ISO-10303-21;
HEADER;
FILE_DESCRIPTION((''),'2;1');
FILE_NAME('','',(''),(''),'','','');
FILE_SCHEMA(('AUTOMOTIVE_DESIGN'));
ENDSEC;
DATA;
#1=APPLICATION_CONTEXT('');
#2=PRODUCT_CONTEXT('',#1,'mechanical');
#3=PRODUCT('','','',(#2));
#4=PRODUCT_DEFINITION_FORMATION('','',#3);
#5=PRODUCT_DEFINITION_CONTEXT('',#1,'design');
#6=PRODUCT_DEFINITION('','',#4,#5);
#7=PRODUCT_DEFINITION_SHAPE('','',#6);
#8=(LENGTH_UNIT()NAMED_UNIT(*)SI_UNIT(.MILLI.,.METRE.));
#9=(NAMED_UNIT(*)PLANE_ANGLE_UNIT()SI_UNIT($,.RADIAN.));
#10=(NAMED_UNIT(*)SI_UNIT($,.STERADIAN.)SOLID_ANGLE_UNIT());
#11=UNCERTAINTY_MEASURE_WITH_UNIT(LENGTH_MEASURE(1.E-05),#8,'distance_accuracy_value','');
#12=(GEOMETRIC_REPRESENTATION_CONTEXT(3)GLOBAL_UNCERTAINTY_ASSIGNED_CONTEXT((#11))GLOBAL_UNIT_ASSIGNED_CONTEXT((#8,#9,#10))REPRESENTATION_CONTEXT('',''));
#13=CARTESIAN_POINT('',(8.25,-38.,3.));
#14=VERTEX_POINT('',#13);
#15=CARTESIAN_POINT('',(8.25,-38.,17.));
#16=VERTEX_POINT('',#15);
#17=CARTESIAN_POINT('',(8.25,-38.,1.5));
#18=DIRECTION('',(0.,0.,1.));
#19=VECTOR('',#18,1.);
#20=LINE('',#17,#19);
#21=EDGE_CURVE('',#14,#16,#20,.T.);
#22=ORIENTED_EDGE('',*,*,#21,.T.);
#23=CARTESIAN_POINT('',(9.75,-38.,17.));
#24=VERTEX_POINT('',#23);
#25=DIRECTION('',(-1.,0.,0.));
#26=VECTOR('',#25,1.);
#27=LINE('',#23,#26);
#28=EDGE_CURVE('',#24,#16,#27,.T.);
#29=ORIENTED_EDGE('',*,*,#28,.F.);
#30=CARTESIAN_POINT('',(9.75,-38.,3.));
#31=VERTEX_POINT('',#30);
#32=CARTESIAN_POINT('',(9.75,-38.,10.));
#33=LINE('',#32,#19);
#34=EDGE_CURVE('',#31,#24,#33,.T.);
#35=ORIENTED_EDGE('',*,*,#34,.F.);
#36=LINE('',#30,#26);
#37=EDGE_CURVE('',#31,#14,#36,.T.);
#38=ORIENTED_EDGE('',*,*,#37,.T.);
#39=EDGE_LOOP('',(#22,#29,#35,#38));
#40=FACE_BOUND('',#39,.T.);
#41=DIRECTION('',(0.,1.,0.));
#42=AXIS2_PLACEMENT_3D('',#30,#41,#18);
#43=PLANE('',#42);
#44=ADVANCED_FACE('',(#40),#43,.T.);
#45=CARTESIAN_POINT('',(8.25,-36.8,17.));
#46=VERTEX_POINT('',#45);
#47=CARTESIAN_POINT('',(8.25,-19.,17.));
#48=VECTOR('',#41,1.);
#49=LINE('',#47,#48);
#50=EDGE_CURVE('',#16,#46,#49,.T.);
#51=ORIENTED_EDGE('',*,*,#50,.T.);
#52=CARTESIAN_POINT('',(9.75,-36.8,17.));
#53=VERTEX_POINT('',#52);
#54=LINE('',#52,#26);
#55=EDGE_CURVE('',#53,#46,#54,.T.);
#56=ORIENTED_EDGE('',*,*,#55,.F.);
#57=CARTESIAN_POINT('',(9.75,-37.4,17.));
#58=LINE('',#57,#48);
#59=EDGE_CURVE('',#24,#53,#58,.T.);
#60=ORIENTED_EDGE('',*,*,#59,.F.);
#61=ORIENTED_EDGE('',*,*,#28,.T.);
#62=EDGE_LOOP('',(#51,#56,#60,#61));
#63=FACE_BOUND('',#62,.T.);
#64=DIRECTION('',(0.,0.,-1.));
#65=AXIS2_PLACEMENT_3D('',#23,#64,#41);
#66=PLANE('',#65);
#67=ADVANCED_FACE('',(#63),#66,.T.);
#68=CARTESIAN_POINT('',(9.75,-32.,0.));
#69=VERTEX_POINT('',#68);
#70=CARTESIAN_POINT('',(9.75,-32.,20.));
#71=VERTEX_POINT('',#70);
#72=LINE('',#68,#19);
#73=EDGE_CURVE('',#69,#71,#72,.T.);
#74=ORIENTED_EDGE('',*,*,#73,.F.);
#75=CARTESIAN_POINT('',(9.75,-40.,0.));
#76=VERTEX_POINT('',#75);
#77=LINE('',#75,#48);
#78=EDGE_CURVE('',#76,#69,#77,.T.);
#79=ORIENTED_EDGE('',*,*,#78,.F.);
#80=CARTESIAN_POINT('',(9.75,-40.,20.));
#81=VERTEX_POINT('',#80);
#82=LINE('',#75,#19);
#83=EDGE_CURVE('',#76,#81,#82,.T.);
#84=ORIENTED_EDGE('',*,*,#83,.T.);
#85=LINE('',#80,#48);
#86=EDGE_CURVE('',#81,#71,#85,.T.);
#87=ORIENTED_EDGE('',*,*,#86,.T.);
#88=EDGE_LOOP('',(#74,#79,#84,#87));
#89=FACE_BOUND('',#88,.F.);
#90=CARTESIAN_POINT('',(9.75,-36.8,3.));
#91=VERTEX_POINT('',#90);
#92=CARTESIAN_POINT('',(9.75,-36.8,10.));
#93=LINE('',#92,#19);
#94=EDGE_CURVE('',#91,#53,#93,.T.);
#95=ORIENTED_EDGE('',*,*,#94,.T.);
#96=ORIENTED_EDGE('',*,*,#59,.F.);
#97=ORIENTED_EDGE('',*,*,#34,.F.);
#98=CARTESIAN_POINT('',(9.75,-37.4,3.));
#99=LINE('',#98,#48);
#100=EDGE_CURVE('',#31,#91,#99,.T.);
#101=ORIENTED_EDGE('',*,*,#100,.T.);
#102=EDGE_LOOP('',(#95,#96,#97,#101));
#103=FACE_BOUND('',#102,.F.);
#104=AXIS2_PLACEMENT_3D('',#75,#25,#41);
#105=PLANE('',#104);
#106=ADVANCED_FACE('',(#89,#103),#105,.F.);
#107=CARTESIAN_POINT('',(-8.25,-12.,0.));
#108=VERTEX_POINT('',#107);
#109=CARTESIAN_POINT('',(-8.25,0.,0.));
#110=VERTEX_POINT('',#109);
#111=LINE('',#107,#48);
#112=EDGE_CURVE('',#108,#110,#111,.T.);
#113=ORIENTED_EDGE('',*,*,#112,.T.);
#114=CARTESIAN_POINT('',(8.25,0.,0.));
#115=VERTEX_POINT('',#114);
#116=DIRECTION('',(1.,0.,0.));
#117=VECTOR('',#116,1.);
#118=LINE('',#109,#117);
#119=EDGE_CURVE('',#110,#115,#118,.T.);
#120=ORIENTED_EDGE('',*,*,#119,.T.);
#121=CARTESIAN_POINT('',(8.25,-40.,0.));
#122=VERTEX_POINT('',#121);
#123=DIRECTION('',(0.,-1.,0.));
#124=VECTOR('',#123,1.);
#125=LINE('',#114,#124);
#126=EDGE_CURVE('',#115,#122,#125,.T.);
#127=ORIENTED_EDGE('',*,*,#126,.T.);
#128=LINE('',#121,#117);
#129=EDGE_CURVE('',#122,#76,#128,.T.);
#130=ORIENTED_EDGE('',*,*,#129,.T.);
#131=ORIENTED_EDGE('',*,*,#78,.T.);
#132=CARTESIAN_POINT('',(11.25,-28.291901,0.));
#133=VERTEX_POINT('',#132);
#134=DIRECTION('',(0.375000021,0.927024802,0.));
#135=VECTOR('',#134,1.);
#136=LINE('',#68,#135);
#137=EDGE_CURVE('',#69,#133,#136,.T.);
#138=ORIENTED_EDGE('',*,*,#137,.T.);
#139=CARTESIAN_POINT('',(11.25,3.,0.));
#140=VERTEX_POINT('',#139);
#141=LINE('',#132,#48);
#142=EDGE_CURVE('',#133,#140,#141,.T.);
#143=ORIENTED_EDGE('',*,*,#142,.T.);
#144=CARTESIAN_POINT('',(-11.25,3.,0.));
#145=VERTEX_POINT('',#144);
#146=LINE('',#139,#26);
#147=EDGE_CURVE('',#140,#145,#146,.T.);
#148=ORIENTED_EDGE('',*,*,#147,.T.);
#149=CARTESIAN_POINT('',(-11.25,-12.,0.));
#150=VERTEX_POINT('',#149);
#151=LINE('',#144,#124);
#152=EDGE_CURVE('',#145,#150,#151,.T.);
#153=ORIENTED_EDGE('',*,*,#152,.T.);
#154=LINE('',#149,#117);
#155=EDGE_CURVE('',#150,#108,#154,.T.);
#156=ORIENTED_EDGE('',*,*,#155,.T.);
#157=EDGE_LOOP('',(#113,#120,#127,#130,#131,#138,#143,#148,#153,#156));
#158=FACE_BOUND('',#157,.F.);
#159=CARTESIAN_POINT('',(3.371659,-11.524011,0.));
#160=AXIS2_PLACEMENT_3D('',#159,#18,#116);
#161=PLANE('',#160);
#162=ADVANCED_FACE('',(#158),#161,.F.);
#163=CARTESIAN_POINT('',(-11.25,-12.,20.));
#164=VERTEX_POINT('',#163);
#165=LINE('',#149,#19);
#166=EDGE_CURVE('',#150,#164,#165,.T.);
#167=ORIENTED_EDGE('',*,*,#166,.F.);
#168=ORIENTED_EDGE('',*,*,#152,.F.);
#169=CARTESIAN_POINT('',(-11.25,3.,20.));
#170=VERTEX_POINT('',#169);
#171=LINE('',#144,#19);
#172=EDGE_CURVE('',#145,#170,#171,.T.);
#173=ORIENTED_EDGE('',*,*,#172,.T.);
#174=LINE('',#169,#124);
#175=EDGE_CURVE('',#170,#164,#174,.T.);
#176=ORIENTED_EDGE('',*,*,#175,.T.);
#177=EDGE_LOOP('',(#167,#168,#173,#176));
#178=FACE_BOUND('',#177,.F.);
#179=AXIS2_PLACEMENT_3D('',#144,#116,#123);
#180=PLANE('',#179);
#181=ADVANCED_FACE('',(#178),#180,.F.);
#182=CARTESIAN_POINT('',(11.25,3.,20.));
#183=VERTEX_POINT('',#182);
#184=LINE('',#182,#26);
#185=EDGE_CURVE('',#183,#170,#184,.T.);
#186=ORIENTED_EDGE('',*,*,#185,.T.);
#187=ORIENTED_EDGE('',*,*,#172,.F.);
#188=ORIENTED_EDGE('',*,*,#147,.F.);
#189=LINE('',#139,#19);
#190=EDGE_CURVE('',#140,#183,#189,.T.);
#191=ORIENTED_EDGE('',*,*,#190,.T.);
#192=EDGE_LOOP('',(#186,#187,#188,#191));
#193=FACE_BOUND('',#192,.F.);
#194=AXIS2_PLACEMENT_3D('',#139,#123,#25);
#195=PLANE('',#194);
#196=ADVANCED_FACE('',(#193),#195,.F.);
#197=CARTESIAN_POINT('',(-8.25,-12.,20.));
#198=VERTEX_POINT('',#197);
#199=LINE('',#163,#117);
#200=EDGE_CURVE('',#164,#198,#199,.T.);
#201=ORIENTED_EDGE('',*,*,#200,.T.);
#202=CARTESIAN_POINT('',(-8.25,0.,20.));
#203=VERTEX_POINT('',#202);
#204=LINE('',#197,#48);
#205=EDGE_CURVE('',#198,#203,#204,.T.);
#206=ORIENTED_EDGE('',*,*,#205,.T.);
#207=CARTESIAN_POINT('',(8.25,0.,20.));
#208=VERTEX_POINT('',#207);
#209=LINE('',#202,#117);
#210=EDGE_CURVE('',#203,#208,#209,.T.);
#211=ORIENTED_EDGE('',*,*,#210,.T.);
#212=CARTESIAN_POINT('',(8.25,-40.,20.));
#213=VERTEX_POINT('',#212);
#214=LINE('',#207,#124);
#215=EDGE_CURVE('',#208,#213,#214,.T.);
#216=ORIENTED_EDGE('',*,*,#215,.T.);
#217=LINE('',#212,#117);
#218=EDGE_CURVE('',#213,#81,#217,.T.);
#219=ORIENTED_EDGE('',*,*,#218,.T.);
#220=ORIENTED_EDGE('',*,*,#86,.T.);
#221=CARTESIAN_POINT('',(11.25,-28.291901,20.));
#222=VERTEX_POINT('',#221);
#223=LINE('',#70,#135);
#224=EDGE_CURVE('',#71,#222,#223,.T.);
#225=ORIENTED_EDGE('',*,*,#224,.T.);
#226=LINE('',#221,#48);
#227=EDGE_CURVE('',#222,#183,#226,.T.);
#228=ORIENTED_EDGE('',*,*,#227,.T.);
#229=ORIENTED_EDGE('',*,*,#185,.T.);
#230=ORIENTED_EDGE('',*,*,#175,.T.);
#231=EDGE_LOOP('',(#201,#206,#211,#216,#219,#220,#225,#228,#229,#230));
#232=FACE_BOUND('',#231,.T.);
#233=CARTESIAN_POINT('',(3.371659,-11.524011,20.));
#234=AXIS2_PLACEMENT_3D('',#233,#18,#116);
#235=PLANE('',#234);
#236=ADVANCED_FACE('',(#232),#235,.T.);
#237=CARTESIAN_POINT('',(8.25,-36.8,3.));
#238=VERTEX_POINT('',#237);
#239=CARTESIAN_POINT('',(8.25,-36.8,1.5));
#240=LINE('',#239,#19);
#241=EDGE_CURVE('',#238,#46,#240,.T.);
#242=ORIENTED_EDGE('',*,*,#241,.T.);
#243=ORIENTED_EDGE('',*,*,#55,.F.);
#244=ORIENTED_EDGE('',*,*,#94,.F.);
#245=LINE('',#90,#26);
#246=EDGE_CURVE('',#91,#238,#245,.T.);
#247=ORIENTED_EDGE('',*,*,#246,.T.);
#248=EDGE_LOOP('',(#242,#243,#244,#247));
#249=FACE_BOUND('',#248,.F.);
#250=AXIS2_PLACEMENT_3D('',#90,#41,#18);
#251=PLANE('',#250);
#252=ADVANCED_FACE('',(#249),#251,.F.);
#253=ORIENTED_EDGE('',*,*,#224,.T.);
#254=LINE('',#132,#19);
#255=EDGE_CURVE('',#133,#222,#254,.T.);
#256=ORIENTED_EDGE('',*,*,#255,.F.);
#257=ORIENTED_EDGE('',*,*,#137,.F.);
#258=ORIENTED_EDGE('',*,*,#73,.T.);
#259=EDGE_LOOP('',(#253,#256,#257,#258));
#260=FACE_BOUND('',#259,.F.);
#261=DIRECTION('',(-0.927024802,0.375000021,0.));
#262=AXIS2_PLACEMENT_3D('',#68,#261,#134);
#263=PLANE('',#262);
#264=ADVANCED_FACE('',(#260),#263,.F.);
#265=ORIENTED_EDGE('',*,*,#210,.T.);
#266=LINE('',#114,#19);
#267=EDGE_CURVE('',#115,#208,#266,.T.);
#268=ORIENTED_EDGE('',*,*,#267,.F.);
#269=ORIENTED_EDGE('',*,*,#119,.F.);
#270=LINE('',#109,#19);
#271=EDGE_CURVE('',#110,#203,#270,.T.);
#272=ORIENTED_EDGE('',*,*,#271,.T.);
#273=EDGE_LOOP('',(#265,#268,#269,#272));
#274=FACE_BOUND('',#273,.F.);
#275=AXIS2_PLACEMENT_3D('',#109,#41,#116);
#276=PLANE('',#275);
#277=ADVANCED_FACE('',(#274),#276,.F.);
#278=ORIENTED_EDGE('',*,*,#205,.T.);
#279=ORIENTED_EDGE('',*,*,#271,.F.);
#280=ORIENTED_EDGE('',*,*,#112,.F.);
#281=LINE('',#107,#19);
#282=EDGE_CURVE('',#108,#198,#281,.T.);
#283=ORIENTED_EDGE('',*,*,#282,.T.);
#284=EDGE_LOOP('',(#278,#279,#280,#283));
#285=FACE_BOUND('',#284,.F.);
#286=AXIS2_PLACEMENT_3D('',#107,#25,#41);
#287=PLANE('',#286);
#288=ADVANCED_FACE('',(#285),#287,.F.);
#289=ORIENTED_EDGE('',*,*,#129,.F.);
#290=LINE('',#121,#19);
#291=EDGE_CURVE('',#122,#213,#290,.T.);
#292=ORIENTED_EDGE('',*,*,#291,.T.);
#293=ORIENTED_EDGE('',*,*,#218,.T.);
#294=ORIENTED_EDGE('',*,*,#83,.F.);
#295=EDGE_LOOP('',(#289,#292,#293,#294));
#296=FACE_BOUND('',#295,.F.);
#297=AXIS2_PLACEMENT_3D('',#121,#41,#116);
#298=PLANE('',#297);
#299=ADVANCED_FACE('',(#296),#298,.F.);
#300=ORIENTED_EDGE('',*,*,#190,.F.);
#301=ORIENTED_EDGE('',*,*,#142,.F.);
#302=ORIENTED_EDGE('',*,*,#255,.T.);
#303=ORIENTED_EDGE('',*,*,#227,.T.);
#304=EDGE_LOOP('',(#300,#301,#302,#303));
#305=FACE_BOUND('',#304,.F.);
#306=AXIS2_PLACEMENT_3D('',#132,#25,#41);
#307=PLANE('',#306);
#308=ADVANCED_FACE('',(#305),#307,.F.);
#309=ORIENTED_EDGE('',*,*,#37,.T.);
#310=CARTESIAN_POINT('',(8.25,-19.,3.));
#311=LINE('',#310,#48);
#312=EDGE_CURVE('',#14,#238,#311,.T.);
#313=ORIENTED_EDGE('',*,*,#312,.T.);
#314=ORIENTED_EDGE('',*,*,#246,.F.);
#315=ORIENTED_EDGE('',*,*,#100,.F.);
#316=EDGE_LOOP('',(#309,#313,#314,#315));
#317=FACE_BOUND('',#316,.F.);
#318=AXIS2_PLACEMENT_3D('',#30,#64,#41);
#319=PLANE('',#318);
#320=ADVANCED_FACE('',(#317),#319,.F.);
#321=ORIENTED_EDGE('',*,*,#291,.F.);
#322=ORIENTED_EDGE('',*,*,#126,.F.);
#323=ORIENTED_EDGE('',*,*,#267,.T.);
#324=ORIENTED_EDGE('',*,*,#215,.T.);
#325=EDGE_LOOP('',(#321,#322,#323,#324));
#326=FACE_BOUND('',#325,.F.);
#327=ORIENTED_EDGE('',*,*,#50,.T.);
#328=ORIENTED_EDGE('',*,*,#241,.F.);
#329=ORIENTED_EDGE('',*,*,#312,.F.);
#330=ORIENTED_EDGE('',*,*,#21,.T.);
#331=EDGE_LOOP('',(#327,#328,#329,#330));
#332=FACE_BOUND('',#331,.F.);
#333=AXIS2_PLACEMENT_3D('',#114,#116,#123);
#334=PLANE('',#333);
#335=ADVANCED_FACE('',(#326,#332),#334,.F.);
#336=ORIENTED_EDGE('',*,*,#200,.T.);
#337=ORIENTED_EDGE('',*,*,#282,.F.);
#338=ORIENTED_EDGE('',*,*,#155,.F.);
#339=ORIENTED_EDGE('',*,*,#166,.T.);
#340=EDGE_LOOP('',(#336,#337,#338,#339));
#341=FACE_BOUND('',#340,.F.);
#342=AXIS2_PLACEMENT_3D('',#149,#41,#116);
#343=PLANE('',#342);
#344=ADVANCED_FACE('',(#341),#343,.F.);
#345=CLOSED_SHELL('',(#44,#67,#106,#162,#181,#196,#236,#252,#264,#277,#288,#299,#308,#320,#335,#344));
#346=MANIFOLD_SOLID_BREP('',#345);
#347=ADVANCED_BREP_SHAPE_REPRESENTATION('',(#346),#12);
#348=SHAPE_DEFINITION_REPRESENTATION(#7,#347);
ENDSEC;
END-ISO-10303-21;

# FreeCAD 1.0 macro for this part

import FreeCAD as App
import Part
import Sketcher

V = App.Vector
Q = App.Units.Quantity


def add_polygon(sketch, points):
    """Adds a closed chain of lines whose ends are joined by coincident constraints."""
    first, n = sketch.GeometryCount, len(points)
    for a, b in zip(points, points[1:] + points[:1]):
        sketch.addGeometry(Part.LineSegment(App.Vector(*a, 0), App.Vector(*b, 0)), False)
    for i in range(n):
        sketch.addConstraint(Sketcher.Constraint("Coincident", first + i, 2, first + (i + 1) % n, 1))

doc = App.newDocument("Part")
params = doc.addObject("Spreadsheet::Sheet", "Params")
for row, (alias, value) in enumerate([
    ("sketch1_width", "3 mm"),
    ("sketch1_height", "12 mm"),
    ("sketch1_height2", "40 mm"),
    ("sketch1_height3", "8 mm"),
    ("sketch1_height4", "15 mm"),
    ("pad1_length", "20 mm"),
    ("sketch2_height", "14 mm"),
    ("sketch2_width", "1.2 mm"),
    ("pocket1_length", "5 mm"),
], start=1):
    params.set(f"A{row}", alias)
    params.set(f"B{row}", "=" + value)
    params.setAlias(f"B{row}", alias)

body = doc.addObject("PartDesign::Body", "Body")

# Sketch on XY plane
sketch1 = body.newObject("Sketcher::SketchObject", "Sketch")
sketch1.AttachmentSupport = (doc.getObject("XY_Plane"), [""])
sketch1.MapMode = "FlatFace"
add_polygon(sketch1, [(-8.2, -12), (-8.2, 0), (8.2, 0), (8.2, -40), (9.8, -40), (9.8, -32), (11.2, -28.3), (11.2, 3), (-11.2, 3), (-11.2, -12)])  # lines 0-9
sketch1.addConstraint(Sketcher.Constraint("Vertical", 0))
sketch1.addConstraint(Sketcher.Constraint("Horizontal", 1))
sketch1.addConstraint(Sketcher.Constraint("Vertical", 2))
sketch1.addConstraint(Sketcher.Constraint("Horizontal", 3))
sketch1.addConstraint(Sketcher.Constraint("Vertical", 4))
sketch1.addConstraint(Sketcher.Constraint("Vertical", 6))
sketch1.addConstraint(Sketcher.Constraint("Horizontal", 7))
sketch1.addConstraint(Sketcher.Constraint("Vertical", 8))
sketch1.addConstraint(Sketcher.Constraint("Horizontal", 9))
sketch1.addConstraint(Sketcher.Constraint("Symmetric", 0, 2, 1, 2, -1, 1))
sketch1.addConstraint(Sketcher.Constraint("DistanceX", 9, 1, 9, 2, Q("3 mm")))
sketch1.addConstraint(Sketcher.Constraint("DistanceY", 0, 1, 0, 2, Q("12 mm")))
sketch1.addConstraint(Sketcher.Constraint("DistanceY", 2, 2, 2, 1, Q("40 mm")))
sketch1.addConstraint(Sketcher.Constraint("DistanceY", 4, 1, 4, 2, Q("8 mm")))
sketch1.addConstraint(Sketcher.Constraint("DistanceY", 8, 2, 8, 1, Q("15 mm")))
sketch1.addConstraint(Sketcher.Constraint("Distance", 5, Q("4 mm")))
sketch1.addConstraint(Sketcher.Constraint("DistanceX", 1, 1, 1, 2, Q("16.5 mm")))
sketch1.addConstraint(Sketcher.Constraint("DistanceX", 3, 1, 3, 2, Q("1.5 mm")))
sketch1.addConstraint(Sketcher.Constraint("DistanceX", 7, 2, 7, 1, Q("22.5 mm")))
sketch1.setExpression("Constraints[20]", "Params.sketch1_width")
sketch1.setExpression("Constraints[21]", "Params.sketch1_height")
sketch1.setExpression("Constraints[22]", "Params.sketch1_height2")
sketch1.setExpression("Constraints[23]", "Params.sketch1_height3")
sketch1.setExpression("Constraints[24]", "Params.sketch1_height4")
pad1 = body.newObject("PartDesign::Pad", "Pad")
pad1.Profile = sketch1
pad1.setExpression("Length", "Params.pad1_length")

# Sketch on YZ plane
sketch2 = body.newObject("Sketcher::SketchObject", "Sketch001")
sketch2.AttachmentSupport = (doc.getObject("YZ_Plane"), [""])
sketch2.MapMode = "FlatFace"
sketch2.AttachmentOffset = App.Placement(V(0, 0, 9.75), App.Rotation())
add_polygon(sketch2, [(-38, 17), (-38, 3), (-36.8, 3), (-36.8, 17)])  # lines 0-3
sketch2.addConstraint(Sketcher.Constraint("Vertical", 0))
sketch2.addConstraint(Sketcher.Constraint("Horizontal", 1))
sketch2.addConstraint(Sketcher.Constraint("Vertical", 2))
sketch2.addConstraint(Sketcher.Constraint("Horizontal", 3))
sketch2.addConstraint(Sketcher.Constraint("DistanceY", 0, 2, 0, 1, Q("14 mm")))
sketch2.addConstraint(Sketcher.Constraint("DistanceX", 1, 1, 1, 2, Q("1.2 mm")))
sketch2.addConstraint(Sketcher.Constraint("DistanceX", 0, 2, -1, 1, Q("38 mm")))
sketch2.addConstraint(Sketcher.Constraint("DistanceY", -1, 1, 0, 2, Q("3 mm")))
sketch2.setExpression("Constraints[8]", "Params.sketch2_height")
sketch2.setExpression("Constraints[9]", "Params.sketch2_width")
pocket1 = body.newObject("PartDesign::Pocket", "Pocket")
pocket1.Profile = sketch2
pocket1.setExpression("Length", "Params.pocket1_length")

doc.recompute()
